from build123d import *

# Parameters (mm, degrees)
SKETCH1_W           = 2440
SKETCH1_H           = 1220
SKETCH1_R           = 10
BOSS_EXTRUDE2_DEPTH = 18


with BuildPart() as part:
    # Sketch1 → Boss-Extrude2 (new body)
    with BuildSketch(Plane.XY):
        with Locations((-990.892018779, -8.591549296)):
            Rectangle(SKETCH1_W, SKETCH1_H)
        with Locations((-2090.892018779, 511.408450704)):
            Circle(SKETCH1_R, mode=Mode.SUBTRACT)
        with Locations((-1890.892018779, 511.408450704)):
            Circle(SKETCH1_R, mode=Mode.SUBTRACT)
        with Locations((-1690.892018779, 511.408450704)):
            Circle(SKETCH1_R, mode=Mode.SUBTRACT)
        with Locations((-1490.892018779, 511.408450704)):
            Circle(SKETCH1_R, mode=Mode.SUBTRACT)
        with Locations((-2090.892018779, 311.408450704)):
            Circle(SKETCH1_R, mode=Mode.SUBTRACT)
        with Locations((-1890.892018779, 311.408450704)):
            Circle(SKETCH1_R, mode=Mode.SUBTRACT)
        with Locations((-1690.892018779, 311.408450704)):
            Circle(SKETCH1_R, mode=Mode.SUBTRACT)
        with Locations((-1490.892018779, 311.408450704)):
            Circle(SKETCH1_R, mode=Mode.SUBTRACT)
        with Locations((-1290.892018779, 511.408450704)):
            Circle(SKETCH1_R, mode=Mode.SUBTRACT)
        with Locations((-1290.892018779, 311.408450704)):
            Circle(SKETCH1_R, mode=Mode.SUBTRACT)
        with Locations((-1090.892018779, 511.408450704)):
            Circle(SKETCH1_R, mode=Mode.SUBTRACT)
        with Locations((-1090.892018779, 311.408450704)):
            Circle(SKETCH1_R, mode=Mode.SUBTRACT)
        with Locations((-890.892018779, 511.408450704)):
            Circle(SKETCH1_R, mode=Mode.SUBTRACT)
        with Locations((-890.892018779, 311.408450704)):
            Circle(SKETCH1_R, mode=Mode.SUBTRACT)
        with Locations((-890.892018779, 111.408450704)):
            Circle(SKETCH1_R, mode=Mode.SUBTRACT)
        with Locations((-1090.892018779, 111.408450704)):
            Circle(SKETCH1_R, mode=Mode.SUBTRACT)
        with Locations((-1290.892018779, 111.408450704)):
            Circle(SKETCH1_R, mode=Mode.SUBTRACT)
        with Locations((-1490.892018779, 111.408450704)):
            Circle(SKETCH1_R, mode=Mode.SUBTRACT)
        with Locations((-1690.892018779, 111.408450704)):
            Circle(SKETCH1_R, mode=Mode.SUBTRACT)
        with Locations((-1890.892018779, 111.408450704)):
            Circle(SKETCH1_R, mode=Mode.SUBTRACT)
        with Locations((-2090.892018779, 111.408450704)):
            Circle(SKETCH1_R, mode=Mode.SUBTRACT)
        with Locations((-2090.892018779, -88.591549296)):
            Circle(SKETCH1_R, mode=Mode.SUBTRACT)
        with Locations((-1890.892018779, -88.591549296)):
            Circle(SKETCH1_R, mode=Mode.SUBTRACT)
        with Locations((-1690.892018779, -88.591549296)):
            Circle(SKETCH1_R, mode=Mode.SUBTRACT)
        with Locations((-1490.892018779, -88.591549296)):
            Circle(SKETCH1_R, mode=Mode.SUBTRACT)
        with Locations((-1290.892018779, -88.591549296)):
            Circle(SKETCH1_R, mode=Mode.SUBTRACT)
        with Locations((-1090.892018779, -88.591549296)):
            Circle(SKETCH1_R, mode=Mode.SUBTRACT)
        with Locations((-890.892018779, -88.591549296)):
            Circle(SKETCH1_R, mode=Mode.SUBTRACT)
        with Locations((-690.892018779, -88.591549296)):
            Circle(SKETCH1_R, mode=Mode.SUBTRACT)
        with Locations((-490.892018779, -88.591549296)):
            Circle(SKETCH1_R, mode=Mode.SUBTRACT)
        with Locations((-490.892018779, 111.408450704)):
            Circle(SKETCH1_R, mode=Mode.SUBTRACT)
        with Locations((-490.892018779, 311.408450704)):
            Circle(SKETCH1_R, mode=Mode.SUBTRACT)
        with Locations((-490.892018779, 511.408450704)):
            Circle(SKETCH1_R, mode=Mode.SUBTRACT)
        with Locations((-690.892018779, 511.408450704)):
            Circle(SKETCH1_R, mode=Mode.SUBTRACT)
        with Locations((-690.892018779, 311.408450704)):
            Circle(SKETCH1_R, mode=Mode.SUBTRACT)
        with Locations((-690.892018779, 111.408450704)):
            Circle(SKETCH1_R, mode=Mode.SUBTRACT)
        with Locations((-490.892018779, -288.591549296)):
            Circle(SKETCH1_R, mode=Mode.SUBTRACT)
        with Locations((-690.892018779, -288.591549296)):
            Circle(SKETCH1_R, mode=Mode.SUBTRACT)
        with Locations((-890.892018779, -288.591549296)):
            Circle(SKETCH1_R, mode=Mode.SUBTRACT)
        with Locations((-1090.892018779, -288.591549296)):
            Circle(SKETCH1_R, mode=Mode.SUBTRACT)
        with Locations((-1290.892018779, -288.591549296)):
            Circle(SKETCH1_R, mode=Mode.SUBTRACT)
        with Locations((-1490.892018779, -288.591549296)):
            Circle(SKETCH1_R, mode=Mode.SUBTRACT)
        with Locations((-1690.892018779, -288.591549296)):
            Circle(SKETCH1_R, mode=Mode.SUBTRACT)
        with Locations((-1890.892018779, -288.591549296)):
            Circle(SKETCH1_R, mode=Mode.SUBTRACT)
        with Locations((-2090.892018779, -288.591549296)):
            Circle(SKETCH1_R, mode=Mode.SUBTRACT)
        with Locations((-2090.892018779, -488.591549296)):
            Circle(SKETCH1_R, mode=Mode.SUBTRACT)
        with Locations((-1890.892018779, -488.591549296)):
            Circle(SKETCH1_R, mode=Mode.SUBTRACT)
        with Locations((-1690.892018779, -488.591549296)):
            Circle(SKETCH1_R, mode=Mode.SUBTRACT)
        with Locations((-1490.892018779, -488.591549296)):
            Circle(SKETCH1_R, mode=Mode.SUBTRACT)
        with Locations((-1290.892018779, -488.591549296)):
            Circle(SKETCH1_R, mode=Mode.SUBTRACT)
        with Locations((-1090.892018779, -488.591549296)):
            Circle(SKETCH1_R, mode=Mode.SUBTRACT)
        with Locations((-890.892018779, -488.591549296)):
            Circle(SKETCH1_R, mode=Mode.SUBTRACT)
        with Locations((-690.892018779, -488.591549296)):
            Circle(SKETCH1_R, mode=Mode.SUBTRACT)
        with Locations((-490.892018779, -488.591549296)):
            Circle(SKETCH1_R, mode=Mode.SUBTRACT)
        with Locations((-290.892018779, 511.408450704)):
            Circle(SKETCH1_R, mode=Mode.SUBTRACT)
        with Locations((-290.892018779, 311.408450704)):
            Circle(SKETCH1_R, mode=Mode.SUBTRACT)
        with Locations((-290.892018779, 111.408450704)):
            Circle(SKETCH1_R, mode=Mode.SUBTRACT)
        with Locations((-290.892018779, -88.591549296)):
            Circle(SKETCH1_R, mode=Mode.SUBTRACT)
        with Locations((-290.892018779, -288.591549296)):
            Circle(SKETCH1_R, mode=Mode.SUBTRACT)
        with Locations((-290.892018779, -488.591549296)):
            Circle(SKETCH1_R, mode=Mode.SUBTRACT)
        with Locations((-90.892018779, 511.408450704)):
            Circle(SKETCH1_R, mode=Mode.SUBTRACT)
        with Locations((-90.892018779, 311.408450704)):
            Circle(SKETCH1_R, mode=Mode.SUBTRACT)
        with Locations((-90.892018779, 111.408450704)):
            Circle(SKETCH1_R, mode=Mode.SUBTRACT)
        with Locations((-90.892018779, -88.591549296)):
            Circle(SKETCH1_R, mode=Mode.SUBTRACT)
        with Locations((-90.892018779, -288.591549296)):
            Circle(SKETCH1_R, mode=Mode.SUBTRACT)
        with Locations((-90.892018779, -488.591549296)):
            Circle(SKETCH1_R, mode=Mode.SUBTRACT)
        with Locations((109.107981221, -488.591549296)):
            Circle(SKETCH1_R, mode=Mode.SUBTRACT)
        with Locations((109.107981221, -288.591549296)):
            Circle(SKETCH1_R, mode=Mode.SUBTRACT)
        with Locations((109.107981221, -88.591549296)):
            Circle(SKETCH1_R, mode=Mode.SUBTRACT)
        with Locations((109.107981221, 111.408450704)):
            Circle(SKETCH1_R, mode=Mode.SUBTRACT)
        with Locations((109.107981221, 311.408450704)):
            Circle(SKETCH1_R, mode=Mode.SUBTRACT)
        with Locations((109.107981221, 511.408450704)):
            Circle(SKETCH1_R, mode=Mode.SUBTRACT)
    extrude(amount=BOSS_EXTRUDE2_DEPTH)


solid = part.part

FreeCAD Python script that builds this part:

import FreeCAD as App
import Part
import Sketcher


def add_polygon(sketch, points):
    """Adds a closed chain of lines whose ends are joined by coincident constraints."""
    first, n = sketch.GeometryCount, len(points)
    for a, b in zip(points, points[1:] + points[:1]):
        sketch.addGeometry(Part.LineSegment(App.Vector(*a, 0), App.Vector(*b, 0)), False)
    for i in range(n):
        sketch.addConstraint(Sketcher.Constraint("Coincident", first + i, 2, first + (i + 1) % n, 1))

doc = App.newDocument("Part")
body = doc.addObject("PartDesign::Body", "Body")

# Sketch on XY plane
sketch1 = body.newObject("Sketcher::SketchObject", "Sketch")
sketch1.AttachmentSupport = (doc.getObject("XY_Plane"), [""])
sketch1.MapMode = "FlatFace"
add_polygon(sketch1, [(-2210.892019, 601.408451), (-2210.892019, -618.591549), (229.107981, -618.591549), (229.107981, 601.408451)])  # lines 0-3
sketch1.addGeometry(Part.Circle(App.Vector(-2090.892019, -488.591549, 0), App.Vector(0, 0, 1), 10), False)  # 4
sketch1.addGeometry(Part.Circle(App.Vector(-1890.892019, -488.591549, 0), App.Vector(0, 0, 1), 10), False)  # 5
sketch1.addGeometry(Part.Circle(App.Vector(-1690.892019, -488.591549, 0), App.Vector(0, 0, 1), 10), False)  # 6
sketch1.addGeometry(Part.Circle(App.Vector(-2090.892019, -288.591549, 0), App.Vector(0, 0, 1), 10), False)  # 7
sketch1.addGeometry(Part.Circle(App.Vector(-1890.892019, -288.591549, 0), App.Vector(0, 0, 1), 10), False)  # 8
sketch1.addGeometry(Part.Circle(App.Vector(-1690.892019, -288.591549, 0), App.Vector(0, 0, 1), 10), False)  # 9
sketch1.addGeometry(Part.Circle(App.Vector(-1490.892019, -488.591549, 0), App.Vector(0, 0, 1), 10), False)  # 10
sketch1.addGeometry(Part.Circle(App.Vector(-1290.892019, -488.591549, 0), App.Vector(0, 0, 1), 10), False)  # 11
sketch1.addGeometry(Part.Circle(App.Vector(-1090.892019, -488.591549, 0), App.Vector(0, 0, 1), 10), False)  # 12
sketch1.addGeometry(Part.Circle(App.Vector(-1490.892019, -288.591549, 0), App.Vector(0, 0, 1), 10), False)  # 13
sketch1.addGeometry(Part.Circle(App.Vector(-1290.892019, -288.591549, 0), App.Vector(0, 0, 1), 10), False)  # 14
sketch1.addGeometry(Part.Circle(App.Vector(-1090.892019, -288.591549, 0), App.Vector(0, 0, 1), 10), False)  # 15
sketch1.addGeometry(Part.Circle(App.Vector(-2090.892019, -88.591549, 0), App.Vector(0, 0, 1), 10), False)  # 16
sketch1.addGeometry(Part.Circle(App.Vector(-1890.892019, -88.591549, 0), App.Vector(0, 0, 1), 10), False)  # 17
sketch1.addGeometry(Part.Circle(App.Vector(-1690.892019, -88.591549, 0), App.Vector(0, 0, 1), 10), False)  # 18
sketch1.addGeometry(Part.Circle(App.Vector(-1490.892019, -88.591549, 0), App.Vector(0, 0, 1), 10), False)  # 19
sketch1.addGeometry(Part.Circle(App.Vector(-1290.892019, -88.591549, 0), App.Vector(0, 0, 1), 10), False)  # 20
sketch1.addGeometry(Part.Circle(App.Vector(-1090.892019, -88.591549, 0), App.Vector(0, 0, 1), 10), False)  # 21
sketch1.addGeometry(Part.Circle(App.Vector(-890.892019, -488.591549, 0), App.Vector(0, 0, 1), 10), False)  # 22
sketch1.addGeometry(Part.Circle(App.Vector(-690.892019, -488.591549, 0), App.Vector(0, 0, 1), 10), False)  # 23
sketch1.addGeometry(Part.Circle(App.Vector(-490.892019, -488.591549, 0), App.Vector(0, 0, 1), 10), False)  # 24
sketch1.addGeometry(Part.Circle(App.Vector(-890.892019, -288.591549, 0), App.Vector(0, 0, 1), 10), False)  # 25
sketch1.addGeometry(Part.Circle(App.Vector(-690.892019, -288.591549, 0), App.Vector(0, 0, 1), 10), False)  # 26
sketch1.addGeometry(Part.Circle(App.Vector(-490.892019, -288.591549, 0), App.Vector(0, 0, 1), 10), False)  # 27
sketch1.addGeometry(Part.Circle(App.Vector(-290.892019, -488.591549, 0), App.Vector(0, 0, 1), 10), False)  # 28
sketch1.addGeometry(Part.Circle(App.Vector(-90.892019, -488.591549, 0), App.Vector(0, 0, 1), 10), False)  # 29
sketch1.addGeometry(Part.Circle(App.Vector(109.107981, -488.591549, 0), App.Vector(0, 0, 1), 10), False)  # 30
sketch1.addGeometry(Part.Circle(App.Vector(-290.892019, -288.591549, 0), App.Vector(0, 0, 1), 10), False)  # 31
sketch1.addGeometry(Part.Circle(App.Vector(-90.892019, -288.591549, 0), App.Vector(0, 0, 1), 10), False)  # 32
sketch1.addGeometry(Part.Circle(App.Vector(109.107981, -288.591549, 0), App.Vector(0, 0, 1), 10), False)  # 33
sketch1.addGeometry(Part.Circle(App.Vector(-890.892019, -88.591549, 0), App.Vector(0, 0, 1), 10), False)  # 34
sketch1.addGeometry(Part.Circle(App.Vector(-690.892019, -88.591549, 0), App.Vector(0, 0, 1), 10), False)  # 35
sketch1.addGeometry(Part.Circle(App.Vector(-490.892019, -88.591549, 0), App.Vector(0, 0, 1), 10), False)  # 36
sketch1.addGeometry(Part.Circle(App.Vector(-290.892019, -88.591549, 0), App.Vector(0, 0, 1), 10), False)  # 37
sketch1.addGeometry(Part.Circle(App.Vector(-90.892019, -88.591549, 0), App.Vector(0, 0, 1), 10), False)  # 38
sketch1.addGeometry(Part.Circle(App.Vector(109.107981, -88.591549, 0), App.Vector(0, 0, 1), 10), False)  # 39
sketch1.addGeometry(Part.Circle(App.Vector(-2090.892019, 111.408451, 0), App.Vector(0, 0, 1), 10), False)  # 40
sketch1.addGeometry(Part.Circle(App.Vector(-1890.892019, 111.408451, 0), App.Vector(0, 0, 1), 10), False)  # 41
sketch1.addGeometry(Part.Circle(App.Vector(-1690.892019, 111.408451, 0), App.Vector(0, 0, 1), 10), False)  # 42
sketch1.addGeometry(Part.Circle(App.Vector(-1490.892019, 111.408451, 0), App.Vector(0, 0, 1), 10), False)  # 43
sketch1.addGeometry(Part.Circle(App.Vector(-1290.892019, 111.408451, 0), App.Vector(0, 0, 1), 10), False)  # 44
sketch1.addGeometry(Part.Circle(App.Vector(-1090.892019, 111.408451, 0), App.Vector(0, 0, 1), 10), False)  # 45
sketch1.addGeometry(Part.Circle(App.Vector(-2090.892019, 311.408451, 0), App.Vector(0, 0, 1), 10), False)  # 46
sketch1.addGeometry(Part.Circle(App.Vector(-1890.892019, 311.408451, 0), App.Vector(0, 0, 1), 10), False)  # 47
sketch1.addGeometry(Part.Circle(App.Vector(-1690.892019, 311.408451, 0), App.Vector(0, 0, 1), 10), False)  # 48
sketch1.addGeometry(Part.Circle(App.Vector(-2090.892019, 511.408451, 0), App.Vector(0, 0, 1), 10), False)  # 49
sketch1.addGeometry(Part.Circle(App.Vector(-1890.892019, 511.408451, 0), App.Vector(0, 0, 1), 10), False)  # 50
sketch1.addGeometry(Part.Circle(App.Vector(-1690.892019, 511.408451, 0), App.Vector(0, 0, 1), 10), False)  # 51
sketch1.addGeometry(Part.Circle(App.Vector(-1490.892019, 311.408451, 0), App.Vector(0, 0, 1), 10), False)  # 52
sketch1.addGeometry(Part.Circle(App.Vector(-1290.892019, 311.408451, 0), App.Vector(0, 0, 1), 10), False)  # 53
sketch1.addGeometry(Part.Circle(App.Vector(-1090.892019, 311.408451, 0), App.Vector(0, 0, 1), 10), False)  # 54
sketch1.addGeometry(Part.Circle(App.Vector(-1490.892019, 511.408451, 0), App.Vector(0, 0, 1), 10), False)  # 55
sketch1.addGeometry(Part.Circle(App.Vector(-1290.892019, 511.408451, 0), App.Vector(0, 0, 1), 10), False)  # 56
sketch1.addGeometry(Part.Circle(App.Vector(-1090.892019, 511.408451, 0), App.Vector(0, 0, 1), 10), False)  # 57
sketch1.addGeometry(Part.Circle(App.Vector(-890.892019, 111.408451, 0), App.Vector(0, 0, 1), 10), False)  # 58
sketch1.addGeometry(Part.Circle(App.Vector(-690.892019, 111.408451, 0), App.Vector(0, 0, 1), 10), False)  # 59
sketch1.addGeometry(Part.Circle(App.Vector(-490.892019, 111.408451, 0), App.Vector(0, 0, 1), 10), False)  # 60
sketch1.addGeometry(Part.Circle(App.Vector(-290.892019, 111.408451, 0), App.Vector(0, 0, 1), 10), False)  # 61
sketch1.addGeometry(Part.Circle(App.Vector(-90.892019, 111.408451, 0), App.Vector(0, 0, 1), 10), False)  # 62
sketch1.addGeometry(Part.Circle(App.Vector(109.107981, 111.408451, 0), App.Vector(0, 0, 1), 10), False)  # 63
sketch1.addGeometry(Part.Circle(App.Vector(-890.892019, 311.408451, 0), App.Vector(0, 0, 1), 10), False)  # 64
sketch1.addGeometry(Part.Circle(App.Vector(-690.892019, 311.408451, 0), App.Vector(0, 0, 1), 10), False)  # 65
sketch1.addGeometry(Part.Circle(App.Vector(-490.892019, 311.408451, 0), App.Vector(0, 0, 1), 10), False)  # 66
sketch1.addGeometry(Part.Circle(App.Vector(-890.892019, 511.408451, 0), App.Vector(0, 0, 1), 10), False)  # 67
sketch1.addGeometry(Part.Circle(App.Vector(-690.892019, 511.408451, 0), App.Vector(0, 0, 1), 10), False)  # 68
sketch1.addGeometry(Part.Circle(App.Vector(-490.892019, 511.408451, 0), App.Vector(0, 0, 1), 10), False)  # 69
sketch1.addGeometry(Part.Circle(App.Vector(-290.892019, 311.408451, 0), App.Vector(0, 0, 1), 10), False)  # 70
sketch1.addGeometry(Part.Circle(App.Vector(-90.892019, 311.408451, 0), App.Vector(0, 0, 1), 10), False)  # 71
sketch1.addGeometry(Part.Circle(App.Vector(109.107981, 311.408451, 0), App.Vector(0, 0, 1), 10), False)  # 72
sketch1.addGeometry(Part.Circle(App.Vector(-290.892019, 511.408451, 0), App.Vector(0, 0, 1), 10), False)  # 73
sketch1.addGeometry(Part.Circle(App.Vector(-90.892019, 511.408451, 0), App.Vector(0, 0, 1), 10), False)  # 74
sketch1.addGeometry(Part.Circle(App.Vector(109.107981, 511.408451, 0), App.Vector(0, 0, 1), 10), False)  # 75
sketch1.addConstraint(Sketcher.Constraint("Vertical", 0))
sketch1.addConstraint(Sketcher.Constraint("Horizontal", 1))
sketch1.addConstraint(Sketcher.Constraint("Vertical", 2))
sketch1.addConstraint(Sketcher.Constraint("Horizontal", 3))
sketch1.addConstraint(Sketcher.Constraint("Equal", 4, 5))
sketch1.addConstraint(Sketcher.Constraint("Equal", 5, 6))
sketch1.addConstraint(Sketcher.Constraint("Equal", 6, 7))
sketch1.addConstraint(Sketcher.Constraint("Equal", 7, 8))
sketch1.addConstraint(Sketcher.Constraint("Equal", 8, 9))
sketch1.addConstraint(Sketcher.Constraint("Equal", 9, 10))
sketch1.addConstraint(Sketcher.Constraint("Equal", 10, 11))
sketch1.addConstraint(Sketcher.Constraint("Equal", 11, 12))
sketch1.addConstraint(Sketcher.Constraint("Equal", 12, 13))
sketch1.addConstraint(Sketcher.Constraint("Equal", 13, 14))
sketch1.addConstraint(Sketcher.Constraint("Equal", 14, 15))
sketch1.addConstraint(Sketcher.Constraint("Equal", 15, 16))
sketch1.addConstraint(Sketcher.Constraint("Equal", 16, 17))
sketch1.addConstraint(Sketcher.Constraint("Equal", 17, 18))
sketch1.addConstraint(Sketcher.Constraint("Equal", 18, 19))
sketch1.addConstraint(Sketcher.Constraint("Equal", 19, 20))
sketch1.addConstraint(Sketcher.Constraint("Equal", 20, 21))
sketch1.addConstraint(Sketcher.Constraint("Equal", 21, 22))
sketch1.addConstraint(Sketcher.Constraint("Equal", 22, 23))
sketch1.addConstraint(Sketcher.Constraint("Equal", 23, 24))
sketch1.addConstraint(Sketcher.Constraint("Equal", 24, 25))
sketch1.addConstraint(Sketcher.Constraint("Equal", 25, 26))
sketch1.addConstraint(Sketcher.Constraint("Equal", 26, 27))
sketch1.addConstraint(Sketcher.Constraint("Equal", 27, 28))
sketch1.addConstraint(Sketcher.Constraint("Equal", 28, 29))
sketch1.addConstraint(Sketcher.Constraint("Equal", 29, 30))
sketch1.addConstraint(Sketcher.Constraint("Equal", 30, 31))
sketch1.addConstraint(Sketcher.Constraint("Equal", 31, 32))
sketch1.addConstraint(Sketcher.Constraint("Equal", 32, 33))
sketch1.addConstraint(Sketcher.Constraint("Equal", 33, 34))
sketch1.addConstraint(Sketcher.Constraint("Equal", 34, 35))
sketch1.addConstraint(Sketcher.Constraint("Equal", 35, 36))
sketch1.addConstraint(Sketcher.Constraint("Equal", 36, 37))
sketch1.addConstraint(Sketcher.Constraint("Equal", 37, 38))
sketch1.addConstraint(Sketcher.Constraint("Equal", 38, 39))
sketch1.addConstraint(Sketcher.Constraint("Equal", 39, 40))
sketch1.addConstraint(Sketcher.Constraint("Equal", 40, 41))
sketch1.addConstraint(Sketcher.Constraint("Equal", 41, 42))
sketch1.addConstraint(Sketcher.Constraint("Equal", 42, 43))
sketch1.addConstraint(Sketcher.Constraint("Equal", 43, 44))
sketch1.addConstraint(Sketcher.Constraint("Equal", 44, 45))
sketch1.addConstraint(Sketcher.Constraint("Equal", 45, 46))
sketch1.addConstraint(Sketcher.Constraint("Equal", 46, 47))
sketch1.addConstraint(Sketcher.Constraint("Equal", 47, 48))
sketch1.addConstraint(Sketcher.Constraint("Equal", 48, 49))
sketch1.addConstraint(Sketcher.Constraint("Equal", 49, 50))
sketch1.addConstraint(Sketcher.Constraint("Equal", 50, 51))
sketch1.addConstraint(Sketcher.Constraint("Equal", 51, 52))
sketch1.addConstraint(Sketcher.Constraint("Equal", 52, 53))
sketch1.addConstraint(Sketcher.Constraint("Equal", 53, 54))
sketch1.addConstraint(Sketcher.Constraint("Equal", 54, 55))
sketch1.addConstraint(Sketcher.Constraint("Equal", 55, 56))
sketch1.addConstraint(Sketcher.Constraint("Equal", 56, 57))
sketch1.addConstraint(Sketcher.Constraint("Equal", 57, 58))
sketch1.addConstraint(Sketcher.Constraint("Equal", 58, 59))
sketch1.addConstraint(Sketcher.Constraint("Equal", 59, 60))
sketch1.addConstraint(Sketcher.Constraint("Equal", 60, 61))
sketch1.addConstraint(Sketcher.Constraint("Equal", 61, 62))
sketch1.addConstraint(Sketcher.Constraint("Equal", 62, 63))
sketch1.addConstraint(Sketcher.Constraint("Equal", 63, 64))
sketch1.addConstraint(Sketcher.Constraint("Equal", 64, 65))
sketch1.addConstraint(Sketcher.Constraint("Equal", 65, 66))
sketch1.addConstraint(Sketcher.Constraint("Equal", 66, 67))
sketch1.addConstraint(Sketcher.Constraint("Equal", 67, 68))
sketch1.addConstraint(Sketcher.Constraint("Equal", 68, 69))
sketch1.addConstraint(Sketcher.Constraint("Equal", 69, 70))
sketch1.addConstraint(Sketcher.Constraint("Equal", 70, 71))
sketch1.addConstraint(Sketcher.Constraint("Equal", 71, 72))
sketch1.addConstraint(Sketcher.Constraint("Equal", 72, 73))
sketch1.addConstraint(Sketcher.Constraint("Equal", 73, 74))
sketch1.addConstraint(Sketcher.Constraint("Equal", 74, 75))
sketch1.addConstraint(Sketcher.Constraint("Horizontal", 4, 3, 5, 3))
sketch1.addConstraint(Sketcher.Constraint("Horizontal", 5, 3, 6, 3))
sketch1.addConstraint(Sketcher.Constraint("Horizontal", 7, 3, 8, 3))
sketch1.addConstraint(Sketcher.Constraint("Horizontal", 8, 3, 9, 3))
sketch1.addConstraint(Sketcher.Constraint("Horizontal", 6, 3, 10, 3))
sketch1.addConstraint(Sketcher.Constraint("Horizontal", 10, 3, 11, 3))
sketch1.addConstraint(Sketcher.Constraint("Horizontal", 11, 3, 12, 3))
sketch1.addConstraint(Sketcher.Constraint("Horizontal", 9, 3, 13, 3))
sketch1.addConstraint(Sketcher.Constraint("Horizontal", 13, 3, 14, 3))
sketch1.addConstraint(Sketcher.Constraint("Horizontal", 14, 3, 15, 3))
sketch1.addConstraint(Sketcher.Constraint("Horizontal", 16, 3, 17, 3))
sketch1.addConstraint(Sketcher.Constraint("Horizontal", 17, 3, 18, 3))
sketch1.addConstraint(Sketcher.Constraint("Horizontal", 18, 3, 19, 3))
sketch1.addConstraint(Sketcher.Constraint("Horizontal", 19, 3, 20, 3))
sketch1.addConstraint(Sketcher.Constraint("Horizontal", 20, 3, 21, 3))
sketch1.addConstraint(Sketcher.Constraint("Horizontal", 12, 3, 22, 3))
sketch1.addConstraint(Sketcher.Constraint("Horizontal", 22, 3, 23, 3))
sketch1.addConstraint(Sketcher.Constraint("Horizontal", 23, 3, 24, 3))
sketch1.addConstraint(Sketcher.Constraint("Horizontal", 15, 3, 25, 3))
sketch1.addConstraint(Sketcher.Constraint("Horizontal", 25, 3, 26, 3))
sketch1.addConstraint(Sketcher.Constraint("Horizontal", 26, 3, 27, 3))
sketch1.addConstraint(Sketcher.Constraint("Horizontal", 24, 3, 28, 3))
sketch1.addConstraint(Sketcher.Constraint("Horizontal", 28, 3, 29, 3))
sketch1.addConstraint(Sketcher.Constraint("Horizontal", 29, 3, 30, 3))
sketch1.addConstraint(Sketcher.Constraint("Horizontal", 27, 3, 31, 3))
sketch1.addConstraint(Sketcher.Constraint("Horizontal", 31, 3, 32, 3))
sketch1.addConstraint(Sketcher.Constraint("Horizontal", 32, 3, 33, 3))
sketch1.addConstraint(Sketcher.Constraint("Horizontal", 21, 3, 34, 3))
sketch1.addConstraint(Sketcher.Constraint("Horizontal", 34, 3, 35, 3))
sketch1.addConstraint(Sketcher.Constraint("Horizontal", 35, 3, 36, 3))
sketch1.addConstraint(Sketcher.Constraint("Horizontal", 36, 3, 37, 3))
sketch1.addConstraint(Sketcher.Constraint("Horizontal", 37, 3, 38, 3))
sketch1.addConstraint(Sketcher.Constraint("Horizontal", 38, 3, 39, 3))
sketch1.addConstraint(Sketcher.Constraint("Horizontal", 40, 3, 41, 3))
sketch1.addConstraint(Sketcher.Constraint("Horizontal", 41, 3, 42, 3))
sketch1.addConstraint(Sketcher.Constraint("Horizontal", 42, 3, 43, 3))
sketch1.addConstraint(Sketcher.Constraint("Horizontal", 43, 3, 44, 3))
sketch1.addConstraint(Sketcher.Constraint("Horizontal", 44, 3, 45, 3))
sketch1.addConstraint(Sketcher.Constraint("Horizontal", 46, 3, 47, 3))
sketch1.addConstraint(Sketcher.Constraint("Horizontal", 47, 3, 48, 3))
sketch1.addConstraint(Sketcher.Constraint("Horizontal", 49, 3, 50, 3))
sketch1.addConstraint(Sketcher.Constraint("Horizontal", 50, 3, 51, 3))
sketch1.addConstraint(Sketcher.Constraint("Horizontal", 48, 3, 52, 3))
sketch1.addConstraint(Sketcher.Constraint("Horizontal", 52, 3, 53, 3))
sketch1.addConstraint(Sketcher.Constraint("Horizontal", 53, 3, 54, 3))
sketch1.addConstraint(Sketcher.Constraint("Horizontal", 51, 3, 55, 3))
sketch1.addConstraint(Sketcher.Constraint("Horizontal", 55, 3, 56, 3))
sketch1.addConstraint(Sketcher.Constraint("Horizontal", 56, 3, 57, 3))
sketch1.addConstraint(Sketcher.Constraint("Horizontal", 45, 3, 58, 3))
sketch1.addConstraint(Sketcher.Constraint("Horizontal", 58, 3, 59, 3))
sketch1.addConstraint(Sketcher.Constraint("Horizontal", 59, 3, 60, 3))
sketch1.addConstraint(Sketcher.Constraint("Horizontal", 60, 3, 61, 3))
sketch1.addConstraint(Sketcher.Constraint("Horizontal", 61, 3, 62, 3))
sketch1.addConstraint(Sketcher.Constraint("Horizontal", 62, 3, 63, 3))
sketch1.addConstraint(Sketcher.Constraint("Horizontal", 54, 3, 64, 3))
sketch1.addConstraint(Sketcher.Constraint("Horizontal", 64, 3, 65, 3))
sketch1.addConstraint(Sketcher.Constraint("Horizontal", 65, 3, 66, 3))
sketch1.addConstraint(Sketcher.Constraint("Horizontal", 57, 3, 67, 3))
sketch1.addConstraint(Sketcher.Constraint("Horizontal", 67, 3, 68, 3))
sketch1.addConstraint(Sketcher.Constraint("Horizontal", 68, 3, 69, 3))
sketch1.addConstraint(Sketcher.Constraint("Horizontal", 66, 3, 70, 3))
sketch1.addConstraint(Sketcher.Constraint("Horizontal", 70, 3, 71, 3))
sketch1.addConstraint(Sketcher.Constraint("Horizontal", 71, 3, 72, 3))
sketch1.addConstraint(Sketcher.Constraint("Horizontal", 69, 3, 73, 3))
sketch1.addConstraint(Sketcher.Constraint("Horizontal", 73, 3, 74, 3))
sketch1.addConstraint(Sketcher.Constraint("Horizontal", 74, 3, 75, 3))
sketch1.addConstraint(Sketcher.Constraint("Vertical", 4, 3, 7, 3))
sketch1.addConstraint(Sketcher.Constraint("Vertical", 5, 3, 8, 3))
sketch1.addConstraint(Sketcher.Constraint("Vertical", 6, 3, 9, 3))
sketch1.addConstraint(Sketcher.Constraint("Vertical", 10, 3, 13, 3))
sketch1.addConstraint(Sketcher.Constraint("Vertical", 11, 3, 14, 3))
sketch1.addConstraint(Sketcher.Constraint("Vertical", 12, 3, 15, 3))
sketch1.addConstraint(Sketcher.Constraint("Vertical", 7, 3, 16, 3))
sketch1.addConstraint(Sketcher.Constraint("Vertical", 8, 3, 17, 3))
sketch1.addConstraint(Sketcher.Constraint("Vertical", 9, 3, 18, 3))
sketch1.addConstraint(Sketcher.Constraint("Vertical", 13, 3, 19, 3))
sketch1.addConstraint(Sketcher.Constraint("Vertical", 14, 3, 20, 3))
sketch1.addConstraint(Sketcher.Constraint("Vertical", 15, 3, 21, 3))
sketch1.addConstraint(Sketcher.Constraint("Vertical", 22, 3, 25, 3))
sketch1.addConstraint(Sketcher.Constraint("Vertical", 23, 3, 26, 3))
sketch1.addConstraint(Sketcher.Constraint("Vertical", 24, 3, 27, 3))
sketch1.addConstraint(Sketcher.Constraint("Vertical", 28, 3, 31, 3))
sketch1.addConstraint(Sketcher.Constraint("Vertical", 29, 3, 32, 3))
sketch1.addConstraint(Sketcher.Constraint("Vertical", 30, 3, 33, 3))
sketch1.addConstraint(Sketcher.Constraint("Vertical", 25, 3, 34, 3))
sketch1.addConstraint(Sketcher.Constraint("Vertical", 26, 3, 35, 3))
sketch1.addConstraint(Sketcher.Constraint("Vertical", 27, 3, 36, 3))
sketch1.addConstraint(Sketcher.Constraint("Vertical", 31, 3, 37, 3))
sketch1.addConstraint(Sketcher.Constraint("Vertical", 32, 3, 38, 3))
sketch1.addConstraint(Sketcher.Constraint("Vertical", 33, 3, 39, 3))
sketch1.addConstraint(Sketcher.Constraint("Vertical", 16, 3, 40, 3))
sketch1.addConstraint(Sketcher.Constraint("Vertical", 17, 3, 41, 3))
sketch1.addConstraint(Sketcher.Constraint("Vertical", 18, 3, 42, 3))
sketch1.addConstraint(Sketcher.Constraint("Vertical", 19, 3, 43, 3))
sketch1.addConstraint(Sketcher.Constraint("Vertical", 20, 3, 44, 3))
sketch1.addConstraint(Sketcher.Constraint("Vertical", 21, 3, 45, 3))
sketch1.addConstraint(Sketcher.Constraint("Vertical", 40, 3, 46, 3))
sketch1.addConstraint(Sketcher.Constraint("Vertical", 41, 3, 47, 3))
sketch1.addConstraint(Sketcher.Constraint("Vertical", 42, 3, 48, 3))
sketch1.addConstraint(Sketcher.Constraint("Vertical", 46, 3, 49, 3))
sketch1.addConstraint(Sketcher.Constraint("Vertical", 47, 3, 50, 3))
sketch1.addConstraint(Sketcher.Constraint("Vertical", 48, 3, 51, 3))
sketch1.addConstraint(Sketcher.Constraint("Vertical", 43, 3, 52, 3))
sketch1.addConstraint(Sketcher.Constraint("Vertical", 44, 3, 53, 3))
sketch1.addConstraint(Sketcher.Constraint("Vertical", 45, 3, 54, 3))
sketch1.addConstraint(Sketcher.Constraint("Vertical", 52, 3, 55, 3))
sketch1.addConstraint(Sketcher.Constraint("Vertical", 53, 3, 56, 3))
sketch1.addConstraint(Sketcher.Constraint("Vertical", 54, 3, 57, 3))
sketch1.addConstraint(Sketcher.Constraint("Vertical", 34, 3, 58, 3))
sketch1.addConstraint(Sketcher.Constraint("Vertical", 35, 3, 59, 3))
sketch1.addConstraint(Sketcher.Constraint("Vertical", 36, 3, 60, 3))
sketch1.addConstraint(Sketcher.Constraint("Vertical", 37, 3, 61, 3))
sketch1.addConstraint(Sketcher.Constraint("Vertical", 38, 3, 62, 3))
sketch1.addConstraint(Sketcher.Constraint("Vertical", 39, 3, 63, 3))
sketch1.addConstraint(Sketcher.Constraint("Vertical", 58, 3, 64, 3))
sketch1.addConstraint(Sketcher.Constraint("Vertical", 59, 3, 65, 3))
sketch1.addConstraint(Sketcher.Constraint("Vertical", 60, 3, 66, 3))
sketch1.addConstraint(Sketcher.Constraint("Vertical", 64, 3, 67, 3))
sketch1.addConstraint(Sketcher.Constraint("Vertical", 65, 3, 68, 3))
sketch1.addConstraint(Sketcher.Constraint("Vertical", 66, 3, 69, 3))
sketch1.addConstraint(Sketcher.Constraint("Vertical", 61, 3, 70, 3))
sketch1.addConstraint(Sketcher.Constraint("Vertical", 62, 3, 71, 3))
sketch1.addConstraint(Sketcher.Constraint("Vertical", 63, 3, 72, 3))
sketch1.addConstraint(Sketcher.Constraint("Vertical", 70, 3, 73, 3))
sketch1.addConstraint(Sketcher.Constraint("Vertical", 71, 3, 74, 3))
sketch1.addConstraint(Sketcher.Constraint("Vertical", 72, 3, 75, 3))
sketch1.addConstraint(Sketcher.Constraint("Diameter", 4, 20.0))
sketch1.addConstraint(Sketcher.Constraint("DistanceX", 1, 1, 1, 2, 2440.0))
sketch1.addConstraint(Sketcher.Constraint("DistanceY", 0, 2, 0, 1, 1220.0))
sketch1.addConstraint(Sketcher.Constraint("DistanceX", 4, 3, -1, 1, 2090.892019))
sketch1.addConstraint(Sketcher.Constraint("DistanceY", 4, 3, -1, 1, 488.591549))
sketch1.addConstraint(Sketcher.Constraint("DistanceX", 5, 3, -1, 1, 1890.892019))
sketch1.addConstraint(Sketcher.Constraint("DistanceX", 6, 3, -1, 1, 1690.892019))
sketch1.addConstraint(Sketcher.Constraint("DistanceY", 7, 3, -1, 1, 288.591549))
sketch1.addConstraint(Sketcher.Constraint("DistanceX", 10, 3, -1, 1, 1490.892019))
sketch1.addConstraint(Sketcher.Constraint("DistanceX", 11, 3, -1, 1, 1290.892019))
sketch1.addConstraint(Sketcher.Constraint("DistanceX", 12, 3, -1, 1, 1090.892019))
sketch1.addConstraint(Sketcher.Constraint("DistanceY", 16, 3, -1, 1, 88.591549))
sketch1.addConstraint(Sketcher.Constraint("DistanceX", 22, 3, -1, 1, 890.892019))
sketch1.addConstraint(Sketcher.Constraint("DistanceX", 23, 3, -1, 1, 690.892019))
sketch1.addConstraint(Sketcher.Constraint("DistanceX", 24, 3, -1, 1, 490.892019))
sketch1.addConstraint(Sketcher.Constraint("DistanceX", 28, 3, -1, 1, 290.892019))
sketch1.addConstraint(Sketcher.Constraint("DistanceX", 29, 3, -1, 1, 90.892019))
sketch1.addConstraint(Sketcher.Constraint("DistanceX", -1, 1, 30, 3, 109.107981))
sketch1.addConstraint(Sketcher.Constraint("DistanceY", -1, 1, 40, 3, 111.408451))
sketch1.addConstraint(Sketcher.Constraint("DistanceY", -1, 1, 46, 3, 311.408451))
sketch1.addConstraint(Sketcher.Constraint("DistanceY", -1, 1, 49, 3, 511.408451))
sketch1.addConstraint(Sketcher.Constraint("DistanceX", 0, 2, -1, 1, 2210.892019))
sketch1.addConstraint(Sketcher.Constraint("DistanceY", 0, 2, -1, 1, 618.591549))
pad1 = body.newObject("PartDesign::Pad", "Pad")
pad1.Profile = sketch1
pad1.Length = 18

doc.recompute()
